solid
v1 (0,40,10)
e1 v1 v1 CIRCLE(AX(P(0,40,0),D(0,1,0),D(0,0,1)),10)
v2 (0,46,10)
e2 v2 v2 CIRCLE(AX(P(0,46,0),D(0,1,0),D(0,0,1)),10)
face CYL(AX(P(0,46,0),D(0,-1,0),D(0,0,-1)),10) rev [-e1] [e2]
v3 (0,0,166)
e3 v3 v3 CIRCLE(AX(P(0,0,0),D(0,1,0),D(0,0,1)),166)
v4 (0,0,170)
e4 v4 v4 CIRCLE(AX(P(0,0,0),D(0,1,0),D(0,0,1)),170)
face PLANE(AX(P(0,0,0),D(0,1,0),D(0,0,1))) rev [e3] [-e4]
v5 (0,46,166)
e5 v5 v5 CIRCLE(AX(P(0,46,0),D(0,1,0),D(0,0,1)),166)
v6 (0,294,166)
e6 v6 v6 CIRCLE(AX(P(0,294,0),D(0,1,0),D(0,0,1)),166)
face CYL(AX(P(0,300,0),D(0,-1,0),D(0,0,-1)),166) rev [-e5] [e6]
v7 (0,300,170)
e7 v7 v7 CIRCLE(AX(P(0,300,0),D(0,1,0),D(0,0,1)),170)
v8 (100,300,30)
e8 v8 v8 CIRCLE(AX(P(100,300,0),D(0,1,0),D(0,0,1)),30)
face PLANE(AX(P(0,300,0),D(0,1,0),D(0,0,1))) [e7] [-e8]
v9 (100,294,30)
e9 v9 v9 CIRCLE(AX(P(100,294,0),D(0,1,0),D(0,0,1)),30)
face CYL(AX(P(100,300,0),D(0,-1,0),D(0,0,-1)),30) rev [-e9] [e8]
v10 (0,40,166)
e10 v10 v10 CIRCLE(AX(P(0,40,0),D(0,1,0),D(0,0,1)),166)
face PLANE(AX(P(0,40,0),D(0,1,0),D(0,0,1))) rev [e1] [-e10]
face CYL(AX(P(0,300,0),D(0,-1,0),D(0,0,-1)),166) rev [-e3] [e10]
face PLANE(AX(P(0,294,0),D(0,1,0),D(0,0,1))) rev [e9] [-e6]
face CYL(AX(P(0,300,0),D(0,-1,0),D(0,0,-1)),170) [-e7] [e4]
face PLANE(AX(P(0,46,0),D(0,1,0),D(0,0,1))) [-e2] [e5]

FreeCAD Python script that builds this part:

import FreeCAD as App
import Part
import Sketcher

doc = App.newDocument("Part")
body = doc.addObject("PartDesign::Body", "Body")

# Sketch on XZ plane
sketch1 = body.newObject("Sketcher::SketchObject", "Sketch")
sketch1.AttachmentSupport = (doc.getObject("XZ_Plane"), [""])
sketch1.MapMode = "FlatFace"
sketch1.addGeometry(Part.Circle(App.Vector(0, 0, 0), App.Vector(0, 0, 1), 170), False)
sketch1.addGeometry(Part.Circle(App.Vector(0, 0, 0), App.Vector(0, 0, 1), 166), False)
sketch1.addConstraint(Sketcher.Constraint("Coincident", 0, 3, -1, 1))
sketch1.addConstraint(Sketcher.Constraint("Coincident", 1, 3, -1, 1))
sketch1.addConstraint(Sketcher.Constraint("Diameter", 0, 340.0))
sketch1.addConstraint(Sketcher.Constraint("Diameter", 1, 332.0))
pad1 = body.newObject("PartDesign::Pad", "Pad")
pad1.Profile = sketch1
pad1.Length = 300
pad1.Reversed = True

# Sketch on XZ plane
sketch2 = body.newObject("Sketcher::SketchObject", "Sketch001")
sketch2.AttachmentSupport = (doc.getObject("XZ_Plane"), [""])
sketch2.MapMode = "FlatFace"
sketch2.AttachmentOffset = App.Placement(App.Vector(0, 0, -40), App.Rotation())
sketch2.addGeometry(Part.Circle(App.Vector(0, 0, 0), App.Vector(0, 0, 1), 170), False)
sketch2.addGeometry(Part.Circle(App.Vector(0, 0, 0), App.Vector(0, 0, 1), 10), False)
sketch2.addConstraint(Sketcher.Constraint("Coincident", 0, 3, -1, 1))
sketch2.addConstraint(Sketcher.Constraint("Coincident", 1, 3, -1, 1))
sketch2.addConstraint(Sketcher.Constraint("Diameter", 0, 340.0))
sketch2.addConstraint(Sketcher.Constraint("Diameter", 1, 20.0))
pad2 = body.newObject("PartDesign::Pad", "Pad001")
pad2.Profile = sketch2
pad2.Length = 6
pad2.Reversed = True

# Sketch on XZ plane
sketch3 = body.newObject("Sketcher::SketchObject", "Sketch002")
sketch3.AttachmentSupport = (doc.getObject("XZ_Plane"), [""])
sketch3.MapMode = "FlatFace"
sketch3.AttachmentOffset = App.Placement(App.Vector(0, 0, -294), App.Rotation())
sketch3.addGeometry(Part.Circle(App.Vector(0, 0, 0), App.Vector(0, 0, 1), 170), False)
sketch3.addGeometry(Part.Circle(App.Vector(100, 0, 0), App.Vector(0, 0, 1), 30), False)
sketch3.addConstraint(Sketcher.Constraint("Coincident", 0, 3, -1, 1))
sketch3.addConstraint(Sketcher.Constraint("PointOnObject", 1, 3, -1))
sketch3.addConstraint(Sketcher.Constraint("Diameter", 0, 340.0))
sketch3.addConstraint(Sketcher.Constraint("Diameter", 1, 60.0))
sketch3.addConstraint(Sketcher.Constraint("DistanceX", -1, 1, 1, 3, 100.0))
pad3 = body.newObject("PartDesign::Pad", "Pad002")
pad3.Profile = sketch3
pad3.Length = 6
pad3.Reversed = True

doc.recompute()
